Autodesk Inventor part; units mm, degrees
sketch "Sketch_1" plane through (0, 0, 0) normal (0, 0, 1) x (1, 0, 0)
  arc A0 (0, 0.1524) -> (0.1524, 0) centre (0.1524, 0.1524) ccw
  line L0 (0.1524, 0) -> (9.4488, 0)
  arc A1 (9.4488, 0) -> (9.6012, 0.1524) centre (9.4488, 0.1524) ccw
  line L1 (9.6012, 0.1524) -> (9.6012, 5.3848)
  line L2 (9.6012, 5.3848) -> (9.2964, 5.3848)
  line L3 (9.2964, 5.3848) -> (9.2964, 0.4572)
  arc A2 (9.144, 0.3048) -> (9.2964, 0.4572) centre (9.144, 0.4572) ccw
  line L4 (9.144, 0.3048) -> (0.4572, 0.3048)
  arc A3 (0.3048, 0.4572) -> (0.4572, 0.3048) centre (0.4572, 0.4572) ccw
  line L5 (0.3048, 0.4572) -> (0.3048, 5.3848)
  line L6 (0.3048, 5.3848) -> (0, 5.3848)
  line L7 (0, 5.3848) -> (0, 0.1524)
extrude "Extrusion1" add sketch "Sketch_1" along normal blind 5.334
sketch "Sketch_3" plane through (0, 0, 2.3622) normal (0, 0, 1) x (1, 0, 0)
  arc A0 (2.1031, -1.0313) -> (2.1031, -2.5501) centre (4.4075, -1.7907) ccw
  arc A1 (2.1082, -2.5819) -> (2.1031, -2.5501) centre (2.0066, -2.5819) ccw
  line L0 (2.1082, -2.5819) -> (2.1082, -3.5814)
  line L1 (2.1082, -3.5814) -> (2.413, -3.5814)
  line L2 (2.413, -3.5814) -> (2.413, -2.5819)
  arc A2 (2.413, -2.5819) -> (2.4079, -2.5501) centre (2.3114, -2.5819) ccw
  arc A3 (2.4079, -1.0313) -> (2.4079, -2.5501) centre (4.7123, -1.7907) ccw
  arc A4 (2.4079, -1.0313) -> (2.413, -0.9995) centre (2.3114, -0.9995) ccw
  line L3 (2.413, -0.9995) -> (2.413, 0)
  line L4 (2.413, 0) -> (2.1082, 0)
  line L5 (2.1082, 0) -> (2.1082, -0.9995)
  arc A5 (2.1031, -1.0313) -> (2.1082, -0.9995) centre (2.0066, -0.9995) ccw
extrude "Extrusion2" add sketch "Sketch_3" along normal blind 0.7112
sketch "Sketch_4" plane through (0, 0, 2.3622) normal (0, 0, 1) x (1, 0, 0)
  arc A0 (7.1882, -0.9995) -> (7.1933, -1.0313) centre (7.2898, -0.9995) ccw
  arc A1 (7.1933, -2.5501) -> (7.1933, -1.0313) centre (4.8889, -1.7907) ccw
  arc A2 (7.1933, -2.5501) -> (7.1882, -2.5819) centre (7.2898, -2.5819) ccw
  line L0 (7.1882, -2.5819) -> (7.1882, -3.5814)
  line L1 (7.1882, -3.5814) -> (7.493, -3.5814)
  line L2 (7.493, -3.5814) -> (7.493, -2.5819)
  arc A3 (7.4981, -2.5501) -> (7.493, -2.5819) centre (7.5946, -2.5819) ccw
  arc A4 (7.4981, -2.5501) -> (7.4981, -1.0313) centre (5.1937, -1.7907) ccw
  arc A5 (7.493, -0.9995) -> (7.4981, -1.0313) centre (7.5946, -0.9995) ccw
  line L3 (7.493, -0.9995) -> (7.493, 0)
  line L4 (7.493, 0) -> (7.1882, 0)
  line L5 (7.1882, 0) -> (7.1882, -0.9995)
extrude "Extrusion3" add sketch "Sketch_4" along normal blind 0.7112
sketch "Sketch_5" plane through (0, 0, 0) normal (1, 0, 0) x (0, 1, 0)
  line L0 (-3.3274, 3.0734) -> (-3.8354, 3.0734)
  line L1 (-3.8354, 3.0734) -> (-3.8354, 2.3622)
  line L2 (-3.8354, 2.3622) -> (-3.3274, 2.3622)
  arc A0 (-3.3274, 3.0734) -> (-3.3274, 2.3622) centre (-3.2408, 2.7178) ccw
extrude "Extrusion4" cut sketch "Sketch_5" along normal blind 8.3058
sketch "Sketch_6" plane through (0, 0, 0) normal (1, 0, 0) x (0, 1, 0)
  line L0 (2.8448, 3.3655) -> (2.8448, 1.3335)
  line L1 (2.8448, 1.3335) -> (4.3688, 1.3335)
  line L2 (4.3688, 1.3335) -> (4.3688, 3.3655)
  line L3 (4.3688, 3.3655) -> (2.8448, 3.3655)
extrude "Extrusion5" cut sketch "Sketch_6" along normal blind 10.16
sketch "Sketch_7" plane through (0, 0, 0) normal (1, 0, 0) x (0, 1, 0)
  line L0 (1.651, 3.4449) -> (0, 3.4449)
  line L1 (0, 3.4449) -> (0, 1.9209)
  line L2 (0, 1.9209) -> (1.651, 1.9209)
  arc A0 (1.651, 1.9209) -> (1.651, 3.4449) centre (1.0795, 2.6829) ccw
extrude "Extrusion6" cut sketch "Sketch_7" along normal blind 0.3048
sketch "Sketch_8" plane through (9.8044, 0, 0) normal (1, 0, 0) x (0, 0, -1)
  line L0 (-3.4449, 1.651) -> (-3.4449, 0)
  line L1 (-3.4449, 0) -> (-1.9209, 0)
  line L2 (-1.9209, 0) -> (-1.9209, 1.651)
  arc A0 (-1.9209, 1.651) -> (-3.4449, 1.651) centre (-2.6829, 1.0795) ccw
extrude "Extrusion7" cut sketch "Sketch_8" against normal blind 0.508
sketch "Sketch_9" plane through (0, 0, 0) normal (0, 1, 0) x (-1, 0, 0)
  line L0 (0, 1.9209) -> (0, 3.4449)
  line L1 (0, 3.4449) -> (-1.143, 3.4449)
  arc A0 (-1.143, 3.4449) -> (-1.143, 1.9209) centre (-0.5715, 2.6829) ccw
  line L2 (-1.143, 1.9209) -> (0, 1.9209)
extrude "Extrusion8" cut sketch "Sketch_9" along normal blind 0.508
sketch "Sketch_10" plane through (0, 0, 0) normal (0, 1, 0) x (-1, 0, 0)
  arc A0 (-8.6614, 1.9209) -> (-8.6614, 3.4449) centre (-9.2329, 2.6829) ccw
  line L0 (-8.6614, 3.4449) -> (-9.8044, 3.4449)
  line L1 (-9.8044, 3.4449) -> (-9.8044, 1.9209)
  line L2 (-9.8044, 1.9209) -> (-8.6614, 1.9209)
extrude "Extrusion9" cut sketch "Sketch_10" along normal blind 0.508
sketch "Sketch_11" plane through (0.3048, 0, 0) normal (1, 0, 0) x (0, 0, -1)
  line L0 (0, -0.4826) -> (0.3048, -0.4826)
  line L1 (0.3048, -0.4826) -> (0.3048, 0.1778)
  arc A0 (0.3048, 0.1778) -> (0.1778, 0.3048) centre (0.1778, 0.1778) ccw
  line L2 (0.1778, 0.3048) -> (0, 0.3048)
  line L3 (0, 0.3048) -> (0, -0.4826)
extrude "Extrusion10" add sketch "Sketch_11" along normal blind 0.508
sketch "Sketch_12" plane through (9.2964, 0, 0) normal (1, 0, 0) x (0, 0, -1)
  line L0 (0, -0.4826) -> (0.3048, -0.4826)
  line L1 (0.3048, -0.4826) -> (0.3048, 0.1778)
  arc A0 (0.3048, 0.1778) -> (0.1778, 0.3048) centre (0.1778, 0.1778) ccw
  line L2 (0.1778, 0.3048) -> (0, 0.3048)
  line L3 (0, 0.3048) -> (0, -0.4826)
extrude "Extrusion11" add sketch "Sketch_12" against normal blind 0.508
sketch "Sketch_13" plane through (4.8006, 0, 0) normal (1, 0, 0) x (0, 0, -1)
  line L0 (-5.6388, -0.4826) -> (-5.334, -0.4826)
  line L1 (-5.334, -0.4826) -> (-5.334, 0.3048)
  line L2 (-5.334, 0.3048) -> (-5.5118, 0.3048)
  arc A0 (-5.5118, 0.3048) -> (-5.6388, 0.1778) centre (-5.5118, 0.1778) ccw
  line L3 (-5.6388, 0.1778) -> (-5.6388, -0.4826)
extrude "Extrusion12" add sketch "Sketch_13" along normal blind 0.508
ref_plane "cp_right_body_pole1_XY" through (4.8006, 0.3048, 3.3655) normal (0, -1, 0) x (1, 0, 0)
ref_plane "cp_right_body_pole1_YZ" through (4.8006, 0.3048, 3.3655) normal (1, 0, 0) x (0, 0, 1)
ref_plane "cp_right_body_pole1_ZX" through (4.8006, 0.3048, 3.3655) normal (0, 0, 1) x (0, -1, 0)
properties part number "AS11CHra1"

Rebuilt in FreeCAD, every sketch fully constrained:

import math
import FreeCAD as App
import Part
import Sketcher
Q = App.Units.Quantity


def add_polygon(sketch, points):
    """Adds a closed chain of lines whose ends are joined by coincident constraints."""
    first, n = sketch.GeometryCount, len(points)
    for a, b in zip(points, points[1:] + points[:1]):
        sketch.addGeometry(Part.LineSegment(App.Vector(*a, 0), App.Vector(*b, 0)), False)
    for i in range(n):
        sketch.addConstraint(Sketcher.Constraint("Coincident", first + i, 2, first + (i + 1) % n, 1))

doc = App.newDocument("Part")
params = doc.addObject("Spreadsheet::Sheet", "Params")
for row, (alias, value) in enumerate([
    ("sketch1_radius", "0.006 in"),
    ("sketch1_width", "0.366 in"),
    ("sketch1_width2", "0.012 in"),
    ("sketch1_height", "0.206 in"),
    ("pad1_length", "0.21 in"),
    ("sketch2_radius", "0.004 in"),
    ("sketch2_width", "0.012 in"),
    ("pad2_length", "0.028 in"),
    ("sketch3_radius", "0.004 in"),
    ("sketch3_width", "0.012 in"),
    ("pad3_length", "0.028 in"),
    ("sketch4_width", "0.02 in"),
    ("sketch4_height", "0.028 in"),
    ("pocket1_length", "0.327 in"),
    ("sketch5_width", "0.06 in"),
    ("sketch5_height", "0.08 in"),
    ("pocket2_length", "0.4 in"),
    ("sketch6_height", "0.06 in"),
    ("sketch6_width", "0.065 in"),
    ("pocket3_length", "0.012 in"),
    ("sketch7_height", "0.06 in"),
    ("sketch7_width", "0.065 in"),
    ("pocket4_length", "0.02 in"),
    ("sketch8_height", "0.06 in"),
    ("sketch8_width", "0.045 in"),
    ("pocket5_length", "0.02 in"),
    ("sketch9_height", "0.06 in"),
    ("sketch9_width", "0.045 in"),
    ("pocket6_length", "0.02 in"),
    ("sketch10_radius", "0.005 in"),
    ("sketch10_width", "0.031 in"),
    ("sketch10_height", "0.012 in"),
    ("pad4_length", "0.02 in"),
    ("sketch11_radius", "0.005 in"),
    ("sketch11_width", "0.031 in"),
    ("sketch11_height", "0.012 in"),
    ("pad5_length", "0.02 in"),
    ("sketch12_radius", "0.005 in"),
    ("sketch12_width", "0.026 in"),
    ("sketch12_height", "0.012 in"),
    ("pad6_length", "0.02 in"),
], start=1):
    params.set(f"A{row}", alias)
    params.set(f"B{row}", "=" + value)
    params.setAlias(f"B{row}", alias)

body = doc.addObject("PartDesign::Body", "Body")

# Sketch on XY plane
sketch1 = body.newObject("Sketcher::SketchObject", "Sketch")
sketch1.AttachmentSupport = (doc.getObject("XY_Plane"), [""])
sketch1.MapMode = "FlatFace"
sketch1.addGeometry([
    Part.LineSegment(App.Vector(0, 5.38, 0), App.Vector(0, 0.15, 0)),  # 0
    Part.ArcOfCircle(Part.Circle(App.Vector(0.15, 0.15, 0), App.Vector(0, 0, 1), 0.15), math.radians(180), math.radians(270)),  # 1
    Part.LineSegment(App.Vector(0.15, 0, 0), App.Vector(9.45, 0, 0)),  # 2
    Part.ArcOfCircle(Part.Circle(App.Vector(9.45, 0.15, 0), App.Vector(0, 0, 1), 0.15), math.radians(-90), math.radians(0)),  # 3
    Part.LineSegment(App.Vector(9.6, 0.15, 0), App.Vector(9.6, 5.38, 0)),  # 4
    Part.LineSegment(App.Vector(9.6, 5.38, 0), App.Vector(9.3, 5.38, 0)),  # 5
    Part.LineSegment(App.Vector(9.3, 5.38, 0), App.Vector(9.3, 0.46, 0)),  # 6
    Part.ArcOfCircle(Part.Circle(App.Vector(9.14, 0.46, 0), App.Vector(0, 0, 1), 0.15), math.radians(-90), math.radians(0)),  # 7
    Part.LineSegment(App.Vector(9.14, 0.3, 0), App.Vector(0.46, 0.3, 0)),  # 8
    Part.ArcOfCircle(Part.Circle(App.Vector(0.46, 0.46, 0), App.Vector(0, 0, 1), 0.15), math.radians(180), math.radians(270)),  # 9
    Part.LineSegment(App.Vector(0.3, 0.46, 0), App.Vector(0.3, 5.38, 0)),  # 10
    Part.LineSegment(App.Vector(0.3, 5.38, 0), App.Vector(0, 5.38, 0)),  # 11
], False)
sketch1.addConstraint([
    Sketcher.Constraint("Tangent", 0, 2, 1, 1),
    Sketcher.Constraint("Tangent", 1, 2, 2, 1),
    Sketcher.Constraint("Tangent", 2, 2, 3, 1),
    Sketcher.Constraint("Tangent", 3, 2, 4, 1),
    Sketcher.Constraint("Coincident", 4, 2, 5, 1),
    Sketcher.Constraint("Coincident", 5, 2, 6, 1),
    Sketcher.Constraint("Tangent", 6, 2, 7, 2),
    Sketcher.Constraint("Tangent", 7, 1, 8, 1),
    Sketcher.Constraint("Tangent", 8, 2, 9, 2),
    Sketcher.Constraint("Tangent", 9, 1, 10, 1),
    Sketcher.Constraint("Coincident", 10, 2, 11, 1),
    Sketcher.Constraint("Coincident", 11, 2, 0, 1),
    Sketcher.Constraint("Vertical", 0),
    Sketcher.Constraint("Horizontal", 2),
    Sketcher.Constraint("Vertical", 4),
    Sketcher.Constraint("Horizontal", 5),
    Sketcher.Constraint("Vertical", 6),
    Sketcher.Constraint("Horizontal", 8),
    Sketcher.Constraint("Vertical", 10),
    Sketcher.Constraint("Horizontal", 11),
    Sketcher.Constraint("Equal", 1, 3),
    Sketcher.Constraint("Equal", 3, 7),
    Sketcher.Constraint("Equal", 7, 9),
    Sketcher.Constraint("PointOnObject", 0, 2, -2),
    Sketcher.Constraint("PointOnObject", 1, 2, -1),
    Sketcher.Constraint("Horizontal", 5, 2, 10, 2),
    Sketcher.Constraint("Equal", 5, 11),
    Sketcher.Constraint("Radius", 1, Q("0.006 in")),
    Sketcher.Constraint("DistanceY", 8, 2, 10, 2, Q("0.2 in")),
    Sketcher.Constraint("DistanceX", 2, 1, 2, 2, Q("0.366 in")),
    Sketcher.Constraint("DistanceX", 5, 2, 5, 1, Q("0.012 in")),
    Sketcher.Constraint("DistanceY", 0, 2, 0, 1, Q("0.206 in")),
])
sketch1.setExpression("Constraints[27]", "Params.sketch1_radius")
sketch1.setExpression("Constraints[29]", "Params.sketch1_width")
sketch1.setExpression("Constraints[30]", "Params.sketch1_width2")
sketch1.setExpression("Constraints[31]", "Params.sketch1_height")
pad1 = body.newObject("PartDesign::Pad", "Pad")
pad1.Profile = sketch1
pad1.setExpression("Length", "Params.pad1_length")

# Sketch on XY plane
sketch2 = body.newObject("Sketcher::SketchObject", "Sketch001")
sketch2.AttachmentSupport = (doc.getObject("XY_Plane"), [""])
sketch2.MapMode = "FlatFace"
sketch2.AttachmentOffset = App.Placement(App.Vector(0, 0, 0.093 * 25.4), App.Rotation())
sketch2.addGeometry([
    Part.ArcOfCircle(Part.Circle(App.Vector(2.007, -1, 0), App.Vector(0, 0, 1), 0.102), math.radians(-18.24), math.radians(0)),  # 0
    Part.ArcOfCircle(Part.Circle(App.Vector(4.407, -1.791, 0), App.Vector(0, 0, 1), 2.426), math.radians(162), math.radians(198)),  # 1
    Part.ArcOfCircle(Part.Circle(App.Vector(2.007, -2.582, 0), App.Vector(0, 0, 1), 0.102), math.radians(0), math.radians(18.24)),  # 2
    Part.LineSegment(App.Vector(2.108, -2.582, 0), App.Vector(2.108, -3.581, 0)),  # 3
    Part.LineSegment(App.Vector(2.108, -3.581, 0), App.Vector(2.413, -3.581, 0)),  # 4
    Part.LineSegment(App.Vector(2.413, -3.581, 0), App.Vector(2.413, -2.582, 0)),  # 5
    Part.ArcOfCircle(Part.Circle(App.Vector(2.311, -2.582, 0), App.Vector(0, 0, 1), 0.102), math.radians(0), math.radians(18.24)),  # 6
    Part.ArcOfCircle(Part.Circle(App.Vector(4.712, -1.791, 0), App.Vector(0, 0, 1), 2.426), math.radians(162), math.radians(198)),  # 7
    Part.ArcOfCircle(Part.Circle(App.Vector(2.311, -1, 0), App.Vector(0, 0, 1), 0.102), math.radians(-18.24), math.radians(0)),  # 8
    Part.LineSegment(App.Vector(2.413, -1, 0), App.Vector(2.413, 0, 0)),  # 9
    Part.LineSegment(App.Vector(2.413, 0, 0), App.Vector(2.108, 0, 0)),  # 10
    Part.LineSegment(App.Vector(2.108, 0, 0), App.Vector(2.108, -1, 0)),  # 11
], False)
sketch2.addConstraint([
    Sketcher.Constraint("Tangent", 0, 1, 1, 1),
    Sketcher.Constraint("Tangent", 1, 2, 2, 2),
    Sketcher.Constraint("Tangent", 2, 1, 3, 1),
    Sketcher.Constraint("Coincident", 3, 2, 4, 1),
    Sketcher.Constraint("Coincident", 4, 2, 5, 1),
    Sketcher.Constraint("Tangent", 5, 2, 6, 1),
    Sketcher.Constraint("Tangent", 6, 2, 7, 2),
    Sketcher.Constraint("Tangent", 7, 1, 8, 1),
    Sketcher.Constraint("Tangent", 8, 2, 9, 1),
    Sketcher.Constraint("Coincident", 9, 2, 10, 1),
    Sketcher.Constraint("Coincident", 10, 2, 11, 1),
    Sketcher.Constraint("Tangent", 11, 2, 0, 2),
    Sketcher.Constraint("Vertical", 3),
    Sketcher.Constraint("Horizontal", 4),
    Sketcher.Constraint("Vertical", 5),
    Sketcher.Constraint("Vertical", 9),
    Sketcher.Constraint("Horizontal", 10),
    Sketcher.Constraint("Vertical", 11),
    Sketcher.Constraint("Equal", 0, 2),
    Sketcher.Constraint("Equal", 2, 6),
    Sketcher.Constraint("Equal", 1, 7),
    Sketcher.Constraint("Equal", 6, 8),
    Sketcher.Constraint("PointOnObject", 9, 2, -1),
    Sketcher.Constraint("Horizontal", 2, 3, 6, 3),
    Sketcher.Constraint("Horizontal", 1, 3, 7, 3),
    Sketcher.Constraint("Horizontal", 0, 3, 8, 3),
    Sketcher.Constraint("Vertical", 0, 3, 2, 3),
    Sketcher.Constraint("Equal", 5, 9),
    Sketcher.Constraint("Radius", 0, Q("0.004 in")),
    Sketcher.Constraint("DistanceX", 4, 1, 4, 2, Q("0.012 in")),
    Sketcher.Constraint("Radius", 1, Q("2.4263 mm")),
    Sketcher.Constraint("DistanceX", -1, 1, 0, 3, Q("0.079 in")),
    Sketcher.Constraint("DistanceY", 3, 2, -1, 1, Q("0.141 in")),
    Sketcher.Constraint("DistanceY", 3, 2, 3, 1, Q("0.9995 mm")),
])
sketch2.setExpression("Constraints[28]", "Params.sketch2_radius")
sketch2.setExpression("Constraints[29]", "Params.sketch2_width")
pad2 = body.newObject("PartDesign::Pad", "Pad001")
pad2.Profile = sketch2
pad2.setExpression("Length", "Params.pad2_length")

# Sketch on XY plane
sketch3 = body.newObject("Sketcher::SketchObject", "Sketch002")
sketch3.AttachmentSupport = (doc.getObject("XY_Plane"), [""])
sketch3.MapMode = "FlatFace"
sketch3.AttachmentOffset = App.Placement(App.Vector(0, 0, 0.093 * 25.4), App.Rotation())
sketch3.addGeometry([
    Part.LineSegment(App.Vector(7.188, 0, 0), App.Vector(7.188, -1, 0)),  # 0
    Part.ArcOfCircle(Part.Circle(App.Vector(7.29, -1, 0), App.Vector(0, 0, 1), 0.102), math.radians(180), math.radians(198.24)),  # 1
    Part.ArcOfCircle(Part.Circle(App.Vector(4.889, -1.791, 0), App.Vector(0, 0, 1), 2.426), math.radians(-18), math.radians(18)),  # 2
    Part.ArcOfCircle(Part.Circle(App.Vector(7.29, -2.582, 0), App.Vector(0, 0, 1), 0.102), math.radians(161.76), math.radians(180)),  # 3
    Part.LineSegment(App.Vector(7.188, -2.582, 0), App.Vector(7.188, -3.581, 0)),  # 4
    Part.LineSegment(App.Vector(7.188, -3.581, 0), App.Vector(7.493, -3.581, 0)),  # 5
    Part.LineSegment(App.Vector(7.493, -3.581, 0), App.Vector(7.493, -2.582, 0)),  # 6
    Part.ArcOfCircle(Part.Circle(App.Vector(7.595, -2.582, 0), App.Vector(0, 0, 1), 0.102), math.radians(161.76), math.radians(180)),  # 7
    Part.ArcOfCircle(Part.Circle(App.Vector(5.194, -1.791, 0), App.Vector(0, 0, 1), 2.426), math.radians(-18), math.radians(18)),  # 8
    Part.ArcOfCircle(Part.Circle(App.Vector(7.595, -1, 0), App.Vector(0, 0, 1), 0.102), math.radians(180), math.radians(198.24)),  # 9
    Part.LineSegment(App.Vector(7.493, -1, 0), App.Vector(7.493, 0, 0)),  # 10
    Part.LineSegment(App.Vector(7.493, 0, 0), App.Vector(7.188, 0, 0)),  # 11
], False)
sketch3.addConstraint([
    Sketcher.Constraint("Tangent", 0, 2, 1, 1),
    Sketcher.Constraint("Tangent", 1, 2, 2, 2),
    Sketcher.Constraint("Tangent", 2, 1, 3, 1),
    Sketcher.Constraint("Tangent", 3, 2, 4, 1),
    Sketcher.Constraint("Coincident", 4, 2, 5, 1),
    Sketcher.Constraint("Coincident", 5, 2, 6, 1),
    Sketcher.Constraint("Tangent", 6, 2, 7, 2),
    Sketcher.Constraint("Tangent", 7, 1, 8, 1),
    Sketcher.Constraint("Tangent", 8, 2, 9, 2),
    Sketcher.Constraint("Tangent", 9, 1, 10, 1),
    Sketcher.Constraint("Coincident", 10, 2, 11, 1),
    Sketcher.Constraint("Coincident", 11, 2, 0, 1),
    Sketcher.Constraint("Vertical", 0),
    Sketcher.Constraint("Vertical", 4),
    Sketcher.Constraint("Horizontal", 5),
    Sketcher.Constraint("Vertical", 6),
    Sketcher.Constraint("Vertical", 10),
    Sketcher.Constraint("Horizontal", 11),
    Sketcher.Constraint("Equal", 1, 3),
    Sketcher.Constraint("Equal", 3, 7),
    Sketcher.Constraint("Equal", 2, 8),
    Sketcher.Constraint("Equal", 7, 9),
    Sketcher.Constraint("PointOnObject", 10, 2, -1),
    Sketcher.Constraint("Horizontal", 3, 3, 7, 3),
    Sketcher.Constraint("Horizontal", 2, 3, 8, 3),
    Sketcher.Constraint("Horizontal", 1, 3, 9, 3),
    Sketcher.Constraint("Vertical", 1, 3, 3, 3),
    Sketcher.Constraint("Equal", 0, 4),
    Sketcher.Constraint("Radius", 1, Q("0.004 in")),
    Sketcher.Constraint("DistanceX", 5, 1, 5, 2, Q("0.012 in")),
    Sketcher.Constraint("Radius", 2, Q("2.4263 mm")),
    Sketcher.Constraint("DistanceX", -1, 1, 1, 3, Q("0.287 in")),
    Sketcher.Constraint("DistanceY", 4, 2, -1, 1, Q("0.141 in")),
    Sketcher.Constraint("DistanceY", 0, 2, 0, 1, Q("0.9995 mm")),
])
sketch3.setExpression("Constraints[28]", "Params.sketch3_radius")
sketch3.setExpression("Constraints[29]", "Params.sketch3_width")
pad3 = body.newObject("PartDesign::Pad", "Pad002")
pad3.Profile = sketch3
pad3.setExpression("Length", "Params.pad3_length")

# Sketch on YZ plane
sketch4 = body.newObject("Sketcher::SketchObject", "Sketch003")
sketch4.AttachmentSupport = (doc.getObject("YZ_Plane"), [""])
sketch4.MapMode = "FlatFace"
sketch4.addGeometry([
    Part.ArcOfCircle(Part.Circle(App.Vector(-3.24, 2.72, 0), App.Vector(0, 0, 1), 0.37), math.radians(104), math.radians(256)),
    Part.LineSegment(App.Vector(-3.33, 3.07, 0), App.Vector(-3.84, 3.07, 0)),
    Part.LineSegment(App.Vector(-3.84, 3.07, 0), App.Vector(-3.84, 2.36, 0)),
    Part.LineSegment(App.Vector(-3.84, 2.36, 0), App.Vector(-3.33, 2.36, 0)),
], False)
sketch4.addConstraint([
    Sketcher.Constraint("Coincident", 0, 1, 1, 1),
    Sketcher.Constraint("Coincident", 1, 2, 2, 1),
    Sketcher.Constraint("Coincident", 2, 2, 3, 1),
    Sketcher.Constraint("Coincident", 3, 2, 0, 2),
    Sketcher.Constraint("Horizontal", 1),
    Sketcher.Constraint("Vertical", 2),
    Sketcher.Constraint("Horizontal", 3),
    Sketcher.Constraint("Vertical", 0, 1, 3, 2),
    Sketcher.Constraint("DistanceX", 1, 2, 1, 1, Q("0.02 in")),
    Sketcher.Constraint("Radius", 0, Q("0.0144 in")),
    Sketcher.Constraint("DistanceY", 2, 2, 2, 1, Q("0.028 in")),
    Sketcher.Constraint("DistanceY", -1, 1, 0, 3, Q("0.107 in")),
    Sketcher.Constraint("DistanceX", 0, 1, -1, 1, Q("0.131 in")),
])
sketch4.setExpression("Constraints[8]", "Params.sketch4_width")
sketch4.setExpression("Constraints[10]", "Params.sketch4_height")
pocket1 = body.newObject("PartDesign::Pocket", "Pocket")
pocket1.Profile = sketch4
pocket1.setExpression("Length", "Params.pocket1_length")
pocket1.Reversed = True

# Sketch on YZ plane
sketch5 = body.newObject("Sketcher::SketchObject", "Sketch004")
sketch5.AttachmentSupport = (doc.getObject("YZ_Plane"), [""])
sketch5.MapMode = "FlatFace"
add_polygon(sketch5, [(4.4, 3.4), (2.8, 3.4), (2.8, 1.3), (4.4, 1.3)])  # lines 0-3
sketch5.addConstraint([
    Sketcher.Constraint("Horizontal", 0),
    Sketcher.Constraint("Vertical", 1),
    Sketcher.Constraint("Horizontal", 2),
    Sketcher.Constraint("Vertical", 3),
    Sketcher.Constraint("DistanceX", 0, 2, 0, 1, Q("0.06 in")),
    Sketcher.Constraint("DistanceY", 1, 2, 1, 1, Q("0.08 in")),
    Sketcher.Constraint("DistanceX", -1, 1, 0, 2, Q("0.112 in")),
    Sketcher.Constraint("DistanceY", -1, 1, 0, 2, Q("0.1325 in")),
])
sketch5.setExpression("Constraints[8]", "Params.sketch5_width")
sketch5.setExpression("Constraints[9]", "Params.sketch5_height")
pocket2 = body.newObject("PartDesign::Pocket", "Pocket001")
pocket2.Profile = sketch5
pocket2.setExpression("Length", "Params.pocket2_length")
pocket2.Reversed = True

# Sketch on YZ plane
sketch6 = body.newObject("Sketcher::SketchObject", "Sketch005")
sketch6.AttachmentSupport = (doc.getObject("YZ_Plane"), [""])
sketch6.MapMode = "FlatFace"
sketch6.addGeometry([
    Part.ArcOfCircle(Part.Circle(App.Vector(1.1, 2.7, 0), App.Vector(0, 0, 1), 1), math.radians(-53), math.radians(53)),
    Part.LineSegment(App.Vector(1.7, 3.4, 0), App.Vector(0, 3.4, 0)),
    Part.LineSegment(App.Vector(0, 3.4, 0), App.Vector(0, 1.9, 0)),
    Part.LineSegment(App.Vector(0, 1.9, 0), App.Vector(1.7, 1.9, 0)),
], False)
sketch6.addConstraint([
    Sketcher.Constraint("Coincident", 0, 2, 1, 1),
    Sketcher.Constraint("Coincident", 1, 2, 2, 1),
    Sketcher.Constraint("Coincident", 2, 2, 3, 1),
    Sketcher.Constraint("Coincident", 3, 2, 0, 1),
    Sketcher.Constraint("Horizontal", 1),
    Sketcher.Constraint("Vertical", 2),
    Sketcher.Constraint("Horizontal", 3),
    Sketcher.Constraint("PointOnObject", 1, 2, -2),
    Sketcher.Constraint("Vertical", 0, 2, 3, 2),
    Sketcher.Constraint("DistanceY", 2, 2, 2, 1, Q("0.06 in")),
    Sketcher.Constraint("Radius", 0, Q("0.0375 in")),
    Sketcher.Constraint("DistanceX", 1, 2, 1, 1, Q("0.065 in")),
    Sketcher.Constraint("DistanceY", -1, 1, 0, 3, Q("2.683 mm")),
])
sketch6.setExpression("Constraints[9]", "Params.sketch6_height")
sketch6.setExpression("Constraints[11]", "Params.sketch6_width")
pocket3 = body.newObject("PartDesign::Pocket", "Pocket002")
pocket3.Profile = sketch6
pocket3.setExpression("Length", "Params.pocket3_length")
pocket3.Reversed = True

# Sketch on YZ plane
sketch7 = body.newObject("Sketcher::SketchObject", "Sketch006")
sketch7.AttachmentSupport = (doc.getObject("YZ_Plane"), [""])
sketch7.MapMode = "FlatFace"
sketch7.AttachmentOffset = App.Placement(App.Vector(0, 0, 0.386 * 25.4), App.Rotation())
sketch7.addGeometry([
    Part.ArcOfCircle(Part.Circle(App.Vector(1.1, 2.7, 0), App.Vector(0, 0, 1), 1), math.radians(-53), math.radians(53)),
    Part.LineSegment(App.Vector(1.7, 3.4, 0), App.Vector(0, 3.4, 0)),
    Part.LineSegment(App.Vector(0, 3.4, 0), App.Vector(0, 1.9, 0)),
    Part.LineSegment(App.Vector(0, 1.9, 0), App.Vector(1.7, 1.9, 0)),
], False)
sketch7.addConstraint([
    Sketcher.Constraint("Coincident", 0, 2, 1, 1),
    Sketcher.Constraint("Coincident", 1, 2, 2, 1),
    Sketcher.Constraint("Coincident", 2, 2, 3, 1),
    Sketcher.Constraint("Coincident", 3, 2, 0, 1),
    Sketcher.Constraint("Horizontal", 1),
    Sketcher.Constraint("Vertical", 2),
    Sketcher.Constraint("Horizontal", 3),
    Sketcher.Constraint("PointOnObject", 1, 2, -2),
    Sketcher.Constraint("Vertical", 0, 2, 3, 2),
    Sketcher.Constraint("DistanceY", 2, 2, 2, 1, Q("0.06 in")),
    Sketcher.Constraint("Radius", 0, Q("0.0375 in")),
    Sketcher.Constraint("DistanceX", 1, 2, 1, 1, Q("0.065 in")),
    Sketcher.Constraint("DistanceY", -1, 1, 0, 3, Q("2.683 mm")),
])
sketch7.setExpression("Constraints[9]", "Params.sketch7_height")
sketch7.setExpression("Constraints[11]", "Params.sketch7_width")
pocket4 = body.newObject("PartDesign::Pocket", "Pocket003")
pocket4.Profile = sketch7
pocket4.setExpression("Length", "Params.pocket4_length")

# Sketch on XZ plane
sketch8 = body.newObject("Sketcher::SketchObject", "Sketch007")
sketch8.AttachmentSupport = (doc.getObject("XZ_Plane"), [""])
sketch8.MapMode = "FlatFace"
sketch8.addGeometry([
    Part.LineSegment(App.Vector(1.1, 1.9, 0), App.Vector(0, 1.9, 0)),
    Part.LineSegment(App.Vector(0, 1.9, 0), App.Vector(0, 3.4, 0)),
    Part.LineSegment(App.Vector(0, 3.4, 0), App.Vector(1.1, 3.4, 0)),
    Part.ArcOfCircle(Part.Circle(App.Vector(0.6, 2.7, 0), App.Vector(0, 0, 1), 1), math.radians(-53), math.radians(53)),
], False)
sketch8.addConstraint([
    Sketcher.Constraint("Coincident", 0, 2, 1, 1),
    Sketcher.Constraint("Coincident", 1, 2, 2, 1),
    Sketcher.Constraint("Coincident", 2, 2, 3, 2),
    Sketcher.Constraint("Coincident", 3, 1, 0, 1),
    Sketcher.Constraint("Horizontal", 0),
    Sketcher.Constraint("Vertical", 1),
    Sketcher.Constraint("Horizontal", 2),
    Sketcher.Constraint("PointOnObject", 0, 2, -2),
    Sketcher.Constraint("Vertical", 2, 2, 3, 1),
    Sketcher.Constraint("DistanceY", 1, 1, 1, 2, Q("0.06 in")),
    Sketcher.Constraint("Radius", 3, Q("0.0375 in")),
    Sketcher.Constraint("DistanceX", 0, 2, 0, 1, Q("0.045 in")),
    Sketcher.Constraint("DistanceY", -1, 1, 3, 3, Q("2.683 mm")),
])
sketch8.setExpression("Constraints[9]", "Params.sketch8_height")
sketch8.setExpression("Constraints[11]", "Params.sketch8_width")
pocket5 = body.newObject("PartDesign::Pocket", "Pocket004")
pocket5.Profile = sketch8
pocket5.setExpression("Length", "Params.pocket5_length")

# Sketch on XZ plane
sketch9 = body.newObject("Sketcher::SketchObject", "Sketch008")
sketch9.AttachmentSupport = (doc.getObject("XZ_Plane"), [""])
sketch9.MapMode = "FlatFace"
sketch9.addGeometry([
    Part.LineSegment(App.Vector(9.8, 1.9, 0), App.Vector(8.7, 1.9, 0)),
    Part.ArcOfCircle(Part.Circle(App.Vector(9.2, 2.7, 0), App.Vector(0, 0, 1), 1), math.radians(127), math.radians(233)),
    Part.LineSegment(App.Vector(8.7, 3.4, 0), App.Vector(9.8, 3.4, 0)),
    Part.LineSegment(App.Vector(9.8, 3.4, 0), App.Vector(9.8, 1.9, 0)),
], False)
sketch9.addConstraint([
    Sketcher.Constraint("Coincident", 0, 2, 1, 2),
    Sketcher.Constraint("Coincident", 1, 1, 2, 1),
    Sketcher.Constraint("Coincident", 2, 2, 3, 1),
    Sketcher.Constraint("Coincident", 3, 2, 0, 1),
    Sketcher.Constraint("Horizontal", 0),
    Sketcher.Constraint("Horizontal", 2),
    Sketcher.Constraint("Vertical", 3),
    Sketcher.Constraint("Vertical", 0, 2, 1, 1),
    Sketcher.Constraint("DistanceY", 3, 2, 3, 1, Q("0.06 in")),
    Sketcher.Constraint("Radius", 1, Q("0.0375 in")),
    Sketcher.Constraint("DistanceX", 0, 2, 0, 1, Q("0.045 in")),
    Sketcher.Constraint("DistanceX", -1, 1, 0, 2, Q("0.341 in")),
    Sketcher.Constraint("DistanceY", -1, 1, 1, 3, Q("2.683 mm")),
])
sketch9.setExpression("Constraints[8]", "Params.sketch9_height")
sketch9.setExpression("Constraints[10]", "Params.sketch9_width")
pocket6 = body.newObject("PartDesign::Pocket", "Pocket005")
pocket6.Profile = sketch9
pocket6.setExpression("Length", "Params.pocket6_length")

# Sketch on YZ plane
sketch10 = body.newObject("Sketcher::SketchObject", "Sketch009")
sketch10.AttachmentSupport = (doc.getObject("YZ_Plane"), [""])
sketch10.MapMode = "FlatFace"
sketch10.AttachmentOffset = App.Placement(App.Vector(0, 0, 0.012 * 25.4), App.Rotation())
sketch10.addGeometry([
    Part.LineSegment(App.Vector(0.3, 0, 0), App.Vector(-0.48, 0, 0)),  # 0
    Part.LineSegment(App.Vector(-0.48, 0, 0), App.Vector(-0.48, -0.3, 0)),  # 1
    Part.LineSegment(App.Vector(-0.48, -0.3, 0), App.Vector(0.18, -0.3, 0)),  # 2
    Part.ArcOfCircle(Part.Circle(App.Vector(0.18, -0.18, 0), App.Vector(0, 0, 1), 0.13), math.radians(-90), math.radians(0)),  # 3
    Part.LineSegment(App.Vector(0.3, -0.18, 0), App.Vector(0.3, 0, 0)),  # 4
], False)
sketch10.addConstraint([
    Sketcher.Constraint("Coincident", 0, 2, 1, 1),
    Sketcher.Constraint("Coincident", 1, 2, 2, 1),
    Sketcher.Constraint("Tangent", 2, 2, 3, 1),
    Sketcher.Constraint("Tangent", 3, 2, 4, 1),
    Sketcher.Constraint("Coincident", 4, 2, 0, 1),
    Sketcher.Constraint("Horizontal", 0),
    Sketcher.Constraint("Vertical", 1),
    Sketcher.Constraint("Horizontal", 2),
    Sketcher.Constraint("Vertical", 4),
    Sketcher.Constraint("PointOnObject", 0, 2, -1),
    Sketcher.Constraint("Radius", 3, Q("0.005 in")),
    Sketcher.Constraint("DistanceX", 0, 2, 0, 1, Q("0.031 in")),
    Sketcher.Constraint("DistanceY", 1, 2, 1, 1, Q("0.012 in")),
    Sketcher.Constraint("DistanceX", -1, 1, 3, 3, Q("0.007 in")),
])
sketch10.setExpression("Constraints[10]", "Params.sketch10_radius")
sketch10.setExpression("Constraints[11]", "Params.sketch10_width")
sketch10.setExpression("Constraints[12]", "Params.sketch10_height")
pad4 = body.newObject("PartDesign::Pad", "Pad003")
pad4.Profile = sketch10
pad4.setExpression("Length", "Params.pad4_length")

# Sketch on YZ plane
sketch11 = body.newObject("Sketcher::SketchObject", "Sketch010")
sketch11.AttachmentSupport = (doc.getObject("YZ_Plane"), [""])
sketch11.MapMode = "FlatFace"
sketch11.AttachmentOffset = App.Placement(App.Vector(0, 0, 0.366 * 25.4), App.Rotation())
sketch11.addGeometry([
    Part.LineSegment(App.Vector(0.3, 0, 0), App.Vector(-0.48, 0, 0)),  # 0
    Part.LineSegment(App.Vector(-0.48, 0, 0), App.Vector(-0.48, -0.3, 0)),  # 1
    Part.LineSegment(App.Vector(-0.48, -0.3, 0), App.Vector(0.18, -0.3, 0)),  # 2
    Part.ArcOfCircle(Part.Circle(App.Vector(0.18, -0.18, 0), App.Vector(0, 0, 1), 0.13), math.radians(-90), math.radians(0)),  # 3
    Part.LineSegment(App.Vector(0.3, -0.18, 0), App.Vector(0.3, 0, 0)),  # 4
], False)
sketch11.addConstraint([
    Sketcher.Constraint("Coincident", 0, 2, 1, 1),
    Sketcher.Constraint("Coincident", 1, 2, 2, 1),
    Sketcher.Constraint("Tangent", 2, 2, 3, 1),
    Sketcher.Constraint("Tangent", 3, 2, 4, 1),
    Sketcher.Constraint("Coincident", 4, 2, 0, 1),
    Sketcher.Constraint("Horizontal", 0),
    Sketcher.Constraint("Vertical", 1),
    Sketcher.Constraint("Horizontal", 2),
    Sketcher.Constraint("Vertical", 4),
    Sketcher.Constraint("PointOnObject", 0, 2, -1),
    Sketcher.Constraint("Radius", 3, Q("0.005 in")),
    Sketcher.Constraint("DistanceX", 0, 2, 0, 1, Q("0.031 in")),
    Sketcher.Constraint("DistanceY", 1, 2, 1, 1, Q("0.012 in")),
    Sketcher.Constraint("DistanceX", -1, 1, 3, 3, Q("0.007 in")),
])
sketch11.setExpression("Constraints[10]", "Params.sketch11_radius")
sketch11.setExpression("Constraints[11]", "Params.sketch11_width")
sketch11.setExpression("Constraints[12]", "Params.sketch11_height")
pad5 = body.newObject("PartDesign::Pad", "Pad004")
pad5.Profile = sketch11
pad5.setExpression("Length", "Params.pad5_length")
pad5.Reversed = True

# Sketch on YZ plane
sketch12 = body.newObject("Sketcher::SketchObject", "Sketch011")
sketch12.AttachmentSupport = (doc.getObject("YZ_Plane"), [""])
sketch12.MapMode = "FlatFace"
sketch12.AttachmentOffset = App.Placement(App.Vector(0, 0, 0.189 * 25.4), App.Rotation())
sketch12.addGeometry([
    Part.LineSegment(App.Vector(0.18, 5.64, 0), App.Vector(-0.48, 5.64, 0)),  # 0
    Part.LineSegment(App.Vector(-0.48, 5.64, 0), App.Vector(-0.48, 5.33, 0)),  # 1
    Part.LineSegment(App.Vector(-0.48, 5.33, 0), App.Vector(0.3, 5.33, 0)),  # 2
    Part.LineSegment(App.Vector(0.3, 5.33, 0), App.Vector(0.3, 5.51, 0)),  # 3
    Part.ArcOfCircle(Part.Circle(App.Vector(0.18, 5.51, 0), App.Vector(0, 0, 1), 0.13), math.radians(0), math.radians(90)),  # 4
], False)
sketch12.addConstraint([
    Sketcher.Constraint("Coincident", 0, 2, 1, 1),
    Sketcher.Constraint("Coincident", 1, 2, 2, 1),
    Sketcher.Constraint("Coincident", 2, 2, 3, 1),
    Sketcher.Constraint("Tangent", 3, 2, 4, 1),
    Sketcher.Constraint("Tangent", 4, 2, 0, 1),
    Sketcher.Constraint("Horizontal", 0),
    Sketcher.Constraint("Vertical", 1),
    Sketcher.Constraint("Horizontal", 2),
    Sketcher.Constraint("Vertical", 3),
    Sketcher.Constraint("Radius", 4, Q("0.005 in")),
    Sketcher.Constraint("DistanceX", 0, 2, 0, 1, Q("0.026 in")),
    Sketcher.Constraint("DistanceY", 1, 2, 1, 1, Q("0.012 in")),
    Sketcher.Constraint("DistanceY", -1, 1, 1, 2, Q("0.21 in")),
    Sketcher.Constraint("DistanceX", -1, 1, 4, 3, Q("0.007 in")),
])
sketch12.setExpression("Constraints[9]", "Params.sketch12_radius")
sketch12.setExpression("Constraints[10]", "Params.sketch12_width")
sketch12.setExpression("Constraints[11]", "Params.sketch12_height")
pad6 = body.newObject("PartDesign::Pad", "Pad005")
pad6.Profile = sketch12
pad6.setExpression("Length", "Params.pad6_length")

doc.recompute()
